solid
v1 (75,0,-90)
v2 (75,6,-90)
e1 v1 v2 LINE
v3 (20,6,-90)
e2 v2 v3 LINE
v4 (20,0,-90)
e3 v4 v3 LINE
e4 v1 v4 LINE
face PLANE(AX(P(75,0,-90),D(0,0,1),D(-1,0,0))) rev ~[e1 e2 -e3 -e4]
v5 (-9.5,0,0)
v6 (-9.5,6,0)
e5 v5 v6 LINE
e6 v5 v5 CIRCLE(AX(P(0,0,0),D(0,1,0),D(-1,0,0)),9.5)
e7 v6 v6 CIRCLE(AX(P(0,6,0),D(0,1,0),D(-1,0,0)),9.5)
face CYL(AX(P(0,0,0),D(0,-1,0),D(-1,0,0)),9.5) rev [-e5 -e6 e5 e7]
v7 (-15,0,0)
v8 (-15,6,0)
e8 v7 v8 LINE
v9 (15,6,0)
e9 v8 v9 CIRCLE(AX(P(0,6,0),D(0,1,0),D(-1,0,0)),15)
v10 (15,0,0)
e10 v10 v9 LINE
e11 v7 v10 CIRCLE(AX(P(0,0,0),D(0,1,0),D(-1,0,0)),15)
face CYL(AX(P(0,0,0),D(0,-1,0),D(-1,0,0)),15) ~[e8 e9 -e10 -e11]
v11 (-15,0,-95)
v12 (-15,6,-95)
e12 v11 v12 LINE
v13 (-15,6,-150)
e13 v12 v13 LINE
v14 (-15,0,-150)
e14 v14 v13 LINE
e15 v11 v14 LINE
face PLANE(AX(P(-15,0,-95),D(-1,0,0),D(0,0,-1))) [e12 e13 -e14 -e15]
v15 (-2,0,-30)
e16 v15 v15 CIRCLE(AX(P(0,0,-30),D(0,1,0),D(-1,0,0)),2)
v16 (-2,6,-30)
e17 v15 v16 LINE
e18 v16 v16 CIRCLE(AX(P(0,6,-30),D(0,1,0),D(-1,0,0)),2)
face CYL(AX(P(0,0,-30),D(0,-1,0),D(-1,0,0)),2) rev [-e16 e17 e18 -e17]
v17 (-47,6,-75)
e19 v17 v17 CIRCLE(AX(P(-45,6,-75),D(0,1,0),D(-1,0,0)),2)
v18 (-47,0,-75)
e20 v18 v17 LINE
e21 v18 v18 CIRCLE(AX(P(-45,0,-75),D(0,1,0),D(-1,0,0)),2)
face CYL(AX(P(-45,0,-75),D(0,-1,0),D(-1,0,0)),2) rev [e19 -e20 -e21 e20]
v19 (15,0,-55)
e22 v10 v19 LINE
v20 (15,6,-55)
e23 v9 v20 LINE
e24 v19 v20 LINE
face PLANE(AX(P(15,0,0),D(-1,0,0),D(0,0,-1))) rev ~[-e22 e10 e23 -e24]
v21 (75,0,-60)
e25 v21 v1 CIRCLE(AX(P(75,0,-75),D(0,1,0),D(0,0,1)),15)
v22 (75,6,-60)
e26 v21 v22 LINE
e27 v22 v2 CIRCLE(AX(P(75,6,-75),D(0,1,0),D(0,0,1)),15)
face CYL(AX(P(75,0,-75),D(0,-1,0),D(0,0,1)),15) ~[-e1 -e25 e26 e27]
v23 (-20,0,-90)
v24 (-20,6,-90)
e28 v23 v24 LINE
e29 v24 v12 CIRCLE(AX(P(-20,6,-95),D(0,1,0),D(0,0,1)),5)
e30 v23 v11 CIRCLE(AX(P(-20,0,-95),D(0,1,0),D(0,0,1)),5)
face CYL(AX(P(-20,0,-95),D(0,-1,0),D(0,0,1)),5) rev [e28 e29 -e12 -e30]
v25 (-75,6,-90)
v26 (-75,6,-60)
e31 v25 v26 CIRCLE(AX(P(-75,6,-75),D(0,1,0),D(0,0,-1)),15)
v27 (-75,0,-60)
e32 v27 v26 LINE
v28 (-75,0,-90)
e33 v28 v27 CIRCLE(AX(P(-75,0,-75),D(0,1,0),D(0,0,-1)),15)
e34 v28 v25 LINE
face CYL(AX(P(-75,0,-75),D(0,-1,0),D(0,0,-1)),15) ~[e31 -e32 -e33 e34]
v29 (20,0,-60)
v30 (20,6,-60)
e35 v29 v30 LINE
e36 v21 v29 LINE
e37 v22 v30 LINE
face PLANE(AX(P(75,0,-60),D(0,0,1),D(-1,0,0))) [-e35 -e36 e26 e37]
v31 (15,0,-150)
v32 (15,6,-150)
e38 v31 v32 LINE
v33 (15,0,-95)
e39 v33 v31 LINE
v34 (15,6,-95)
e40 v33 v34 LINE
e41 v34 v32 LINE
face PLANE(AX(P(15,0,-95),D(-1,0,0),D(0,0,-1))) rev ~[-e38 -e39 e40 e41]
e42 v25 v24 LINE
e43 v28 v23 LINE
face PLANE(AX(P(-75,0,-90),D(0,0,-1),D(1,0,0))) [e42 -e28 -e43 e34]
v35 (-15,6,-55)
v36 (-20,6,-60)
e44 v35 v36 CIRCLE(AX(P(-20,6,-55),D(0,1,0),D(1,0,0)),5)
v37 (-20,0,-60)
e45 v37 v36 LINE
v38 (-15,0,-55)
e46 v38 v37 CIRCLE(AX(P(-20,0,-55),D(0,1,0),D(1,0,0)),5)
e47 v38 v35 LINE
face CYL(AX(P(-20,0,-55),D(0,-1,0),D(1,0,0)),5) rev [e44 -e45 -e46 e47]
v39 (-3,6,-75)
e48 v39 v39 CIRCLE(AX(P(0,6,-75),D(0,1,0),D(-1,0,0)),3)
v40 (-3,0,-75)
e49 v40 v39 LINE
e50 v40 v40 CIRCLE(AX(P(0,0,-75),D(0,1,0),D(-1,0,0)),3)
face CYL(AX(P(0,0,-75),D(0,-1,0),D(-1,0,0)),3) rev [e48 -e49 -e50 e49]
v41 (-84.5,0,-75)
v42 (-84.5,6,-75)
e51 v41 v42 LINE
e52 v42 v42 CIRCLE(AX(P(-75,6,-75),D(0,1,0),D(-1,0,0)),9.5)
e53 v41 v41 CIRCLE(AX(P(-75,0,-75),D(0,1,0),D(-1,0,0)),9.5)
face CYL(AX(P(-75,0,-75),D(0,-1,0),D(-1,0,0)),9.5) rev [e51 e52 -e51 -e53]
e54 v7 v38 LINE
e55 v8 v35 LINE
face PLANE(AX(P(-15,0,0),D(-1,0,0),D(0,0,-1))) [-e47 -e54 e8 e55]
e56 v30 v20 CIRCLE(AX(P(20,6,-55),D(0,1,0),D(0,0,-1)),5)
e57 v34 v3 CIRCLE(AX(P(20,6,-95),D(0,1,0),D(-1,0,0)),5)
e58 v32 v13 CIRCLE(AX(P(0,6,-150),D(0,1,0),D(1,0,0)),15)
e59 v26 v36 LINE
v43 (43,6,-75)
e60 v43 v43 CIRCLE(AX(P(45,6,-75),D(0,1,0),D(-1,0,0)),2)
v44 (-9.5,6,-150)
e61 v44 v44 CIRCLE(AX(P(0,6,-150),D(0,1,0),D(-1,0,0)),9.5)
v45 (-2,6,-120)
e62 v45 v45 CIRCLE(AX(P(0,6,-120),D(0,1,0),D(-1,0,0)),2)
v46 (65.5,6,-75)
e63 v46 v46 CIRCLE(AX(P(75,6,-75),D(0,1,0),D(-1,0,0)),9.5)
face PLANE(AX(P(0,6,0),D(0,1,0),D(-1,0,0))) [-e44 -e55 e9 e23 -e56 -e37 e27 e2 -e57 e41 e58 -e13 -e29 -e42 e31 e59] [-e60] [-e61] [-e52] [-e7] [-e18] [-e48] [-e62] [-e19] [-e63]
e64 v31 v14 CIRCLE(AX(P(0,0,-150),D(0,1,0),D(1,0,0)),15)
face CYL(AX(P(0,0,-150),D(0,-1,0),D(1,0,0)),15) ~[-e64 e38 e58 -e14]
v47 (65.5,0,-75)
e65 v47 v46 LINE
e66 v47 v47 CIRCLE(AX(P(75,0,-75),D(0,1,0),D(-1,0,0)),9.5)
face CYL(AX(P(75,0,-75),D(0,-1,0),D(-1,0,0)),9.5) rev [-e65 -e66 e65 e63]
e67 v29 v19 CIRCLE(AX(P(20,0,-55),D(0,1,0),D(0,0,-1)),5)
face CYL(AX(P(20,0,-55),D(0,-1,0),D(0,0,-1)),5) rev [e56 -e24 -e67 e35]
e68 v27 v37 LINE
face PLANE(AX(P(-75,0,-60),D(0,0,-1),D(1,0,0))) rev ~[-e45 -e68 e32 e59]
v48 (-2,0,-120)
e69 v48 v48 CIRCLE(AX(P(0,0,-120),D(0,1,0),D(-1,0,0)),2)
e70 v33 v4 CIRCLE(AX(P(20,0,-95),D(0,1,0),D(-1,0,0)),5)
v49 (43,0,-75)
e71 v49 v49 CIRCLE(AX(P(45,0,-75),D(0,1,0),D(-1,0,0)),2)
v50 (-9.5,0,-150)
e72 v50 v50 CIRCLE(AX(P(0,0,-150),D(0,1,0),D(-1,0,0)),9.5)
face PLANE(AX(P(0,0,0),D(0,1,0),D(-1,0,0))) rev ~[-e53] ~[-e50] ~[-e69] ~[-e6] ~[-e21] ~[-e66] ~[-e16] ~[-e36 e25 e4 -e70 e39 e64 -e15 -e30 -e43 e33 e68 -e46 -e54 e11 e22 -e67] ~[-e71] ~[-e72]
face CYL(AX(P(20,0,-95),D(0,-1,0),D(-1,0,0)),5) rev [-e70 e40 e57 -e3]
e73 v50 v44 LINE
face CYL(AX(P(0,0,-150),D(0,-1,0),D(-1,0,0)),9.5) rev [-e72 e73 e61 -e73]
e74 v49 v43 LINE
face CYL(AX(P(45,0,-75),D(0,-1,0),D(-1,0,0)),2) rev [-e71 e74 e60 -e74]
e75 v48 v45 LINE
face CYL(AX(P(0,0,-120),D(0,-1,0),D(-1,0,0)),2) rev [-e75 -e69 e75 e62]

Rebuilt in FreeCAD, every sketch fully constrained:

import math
import FreeCAD as App
import Part
import Sketcher

V = App.Vector
Q = App.Units.Quantity

doc = App.newDocument("Part")
params = doc.addObject("Spreadsheet::Sheet", "Params")
for row, (alias, value) in enumerate([
    ("sketch1_diameter", "19 mm"),
    ("sketch1_diameter2", "4 mm"),
    ("sketch1_diameter3", "6 mm"),
    ("sketch1_radius", "15 mm"),
    ("sketch1_radius2", "5 mm"),
    ("pad1_length", "6 mm"),
], start=1):
    params.set(f"A{row}", alias)
    params.set(f"B{row}", "=" + value)
    params.setAlias(f"B{row}", alias)

body = doc.addObject("PartDesign::Body", "Body")

sketch1 = body.newObject("Sketcher::SketchObject", "Sketch")
sketch1.AttachmentSupport = (doc.getObject("XZ_Plane"), [""])
sketch1.MapMode = "FlatFace"
sketch1.addGeometry([
    Part.LineSegment(V(-20, -90, 0), V(-75, -90, 0)),
    Part.ArcOfCircle(Part.Circle(V(-75, -75, 0), V(0, 0, 1), 15), math.radians(90), math.radians(270)),
    Part.LineSegment(V(-75, -60, 0), V(-20, -60, 0)),
    Part.ArcOfCircle(Part.Circle(V(-20, -55, 0), V(0, 0, 1), 5), math.radians(-90), math.radians(0)),
    Part.LineSegment(V(-15, -55, 0), V(-15, 0, 0)),
    Part.ArcOfCircle(Part.Circle(V(0, 0, 0), V(0, 0, 1), 15), math.radians(0), math.radians(180)),
    Part.LineSegment(V(15, 0, 0), V(15, -55, 0)),
    Part.ArcOfCircle(Part.Circle(V(20, -55, 0), V(0, 0, 1), 5), math.radians(180), math.radians(270)),
    Part.LineSegment(V(20, -60, 0), V(75, -60, 0)),
    Part.ArcOfCircle(Part.Circle(V(75, -75, 0), V(0, 0, 1), 15), math.radians(-90), math.radians(90)),
    Part.LineSegment(V(75, -90, 0), V(20, -90, 0)),
    Part.ArcOfCircle(Part.Circle(V(20, -95, 0), V(0, 0, 1), 5), math.radians(90), math.radians(180)),
    Part.LineSegment(V(15, -95, 0), V(15, -150, 0)),
    Part.ArcOfCircle(Part.Circle(V(0, -150, 0), V(0, 0, 1), 15), math.radians(180), math.radians(360)),
    Part.LineSegment(V(-15, -150, 0), V(-15, -95, 0)),
    Part.ArcOfCircle(Part.Circle(V(-20, -95, 0), V(0, 0, 1), 5), math.radians(0), math.radians(90)),
    Part.Circle(V(0, -150, 0), V(0, 0, 1), 9.5),
    Part.Circle(V(0, -120, 0), V(0, 0, 1), 2),
    Part.Circle(V(75, -75, 0), V(0, 0, 1), 9.5),
    Part.Circle(V(45, -75, 0), V(0, 0, 1), 2),
    Part.Circle(V(0, -75, 0), V(0, 0, 1), 3),
    Part.Circle(V(-45, -75, 0), V(0, 0, 1), 2),
    Part.Circle(V(-75, -75, 0), V(0, 0, 1), 9.5),
    Part.Circle(V(0, -30, 0), V(0, 0, 1), 2),
    Part.Circle(V(0, 0, 0), V(0, 0, 1), 9.5),
], False)
sketch1.addConstraint([
    Sketcher.Constraint("Tangent", 0, 2, 1, 2),
    Sketcher.Constraint("Tangent", 1, 1, 2, 1),
    Sketcher.Constraint("Tangent", 2, 2, 3, 1),
    Sketcher.Constraint("Tangent", 3, 2, 4, 1),
    Sketcher.Constraint("Tangent", 4, 2, 5, 2),
    Sketcher.Constraint("Tangent", 5, 1, 6, 1),
    Sketcher.Constraint("Tangent", 6, 2, 7, 1),
    Sketcher.Constraint("Tangent", 7, 2, 8, 1),
    Sketcher.Constraint("Tangent", 8, 2, 9, 2),
    Sketcher.Constraint("Tangent", 9, 1, 10, 1),
    Sketcher.Constraint("Tangent", 10, 2, 11, 1),
    Sketcher.Constraint("Tangent", 11, 2, 12, 1),
    Sketcher.Constraint("Tangent", 12, 2, 13, 2),
    Sketcher.Constraint("Tangent", 13, 1, 14, 1),
    Sketcher.Constraint("Tangent", 14, 2, 15, 1),
    Sketcher.Constraint("Tangent", 15, 2, 0, 1),
    Sketcher.Constraint("Horizontal", 0),
    Sketcher.Constraint("Horizontal", 2),
    Sketcher.Constraint("Vertical", 4),
    Sketcher.Constraint("Vertical", 6),
    Sketcher.Constraint("Horizontal", 8),
    Sketcher.Constraint("Horizontal", 10),
    Sketcher.Constraint("Vertical", 12),
    Sketcher.Constraint("Vertical", 14),
    Sketcher.Constraint("Coincident", 5, 3, -1, 1),
    Sketcher.Constraint("Coincident", 24, 3, -1, 1),
    Sketcher.Constraint("Coincident", 16, 3, 13, 3),
    Sketcher.Constraint("Coincident", 18, 3, 9, 3),
    Sketcher.Constraint("Coincident", 22, 3, 1, 3),
    Sketcher.Constraint("Equal", 1, 5),
    Sketcher.Constraint("Equal", 3, 7),
    Sketcher.Constraint("Equal", 5, 9),
    Sketcher.Constraint("Equal", 7, 11),
    Sketcher.Constraint("Equal", 9, 13),
    Sketcher.Constraint("Equal", 11, 15),
    Sketcher.Constraint("Equal", 16, 18),
    Sketcher.Constraint("Equal", 17, 19),
    Sketcher.Constraint("Equal", 19, 21),
    Sketcher.Constraint("Equal", 18, 22),
    Sketcher.Constraint("Equal", 21, 23),
    Sketcher.Constraint("Equal", 22, 24),
    Sketcher.Constraint("Symmetric", 1, 3, 9, 3, -2),
    Sketcher.Constraint("Symmetric", 19, 3, 21, 3, -2),
    Sketcher.Constraint("PointOnObject", 13, 3, -2),
    Sketcher.Constraint("PointOnObject", 17, 3, -2),
    Sketcher.Constraint("PointOnObject", 20, 3, -2),
    Sketcher.Constraint("PointOnObject", 23, 3, -2),
    Sketcher.Constraint("Horizontal", 18, 3, 19, 3),
    Sketcher.Constraint("Horizontal", 19, 3, 20, 3),
    Sketcher.Constraint("Equal", 10, 4),
    Sketcher.Constraint("Equal", 6, 12),
    Sketcher.Constraint("Diameter", 16, Q("19 mm")),
    Sketcher.Constraint("Diameter", 17, Q("4 mm")),
    Sketcher.Constraint("Diameter", 20, Q("6 mm")),
    Sketcher.Constraint("Radius", 1, Q("15 mm")),
    Sketcher.Constraint("Radius", 3, Q("5 mm")),
    Sketcher.Constraint("DistanceY", 23, 3, -1, 1, Q("30 mm")),
    Sketcher.Constraint("DistanceY", 13, 3, 17, 3, Q("30 mm")),
    Sketcher.Constraint("DistanceX", 19, 3, 9, 3, Q("30 mm")),
    Sketcher.Constraint("DistanceY", 2, 2, 23, 3, Q("30 mm")),
])
sketch1.setExpression("Constraints[51]", "Params.sketch1_diameter")
sketch1.setExpression("Constraints[52]", "Params.sketch1_diameter2")
sketch1.setExpression("Constraints[53]", "Params.sketch1_diameter3")
sketch1.setExpression("Constraints[54]", "Params.sketch1_radius")
sketch1.setExpression("Constraints[55]", "Params.sketch1_radius2")
pad1 = body.newObject("PartDesign::Pad", "Pad")
pad1.Profile = sketch1
pad1.setExpression("Length", "Params.pad1_length")
pad1.Reversed = True

doc.recompute()
